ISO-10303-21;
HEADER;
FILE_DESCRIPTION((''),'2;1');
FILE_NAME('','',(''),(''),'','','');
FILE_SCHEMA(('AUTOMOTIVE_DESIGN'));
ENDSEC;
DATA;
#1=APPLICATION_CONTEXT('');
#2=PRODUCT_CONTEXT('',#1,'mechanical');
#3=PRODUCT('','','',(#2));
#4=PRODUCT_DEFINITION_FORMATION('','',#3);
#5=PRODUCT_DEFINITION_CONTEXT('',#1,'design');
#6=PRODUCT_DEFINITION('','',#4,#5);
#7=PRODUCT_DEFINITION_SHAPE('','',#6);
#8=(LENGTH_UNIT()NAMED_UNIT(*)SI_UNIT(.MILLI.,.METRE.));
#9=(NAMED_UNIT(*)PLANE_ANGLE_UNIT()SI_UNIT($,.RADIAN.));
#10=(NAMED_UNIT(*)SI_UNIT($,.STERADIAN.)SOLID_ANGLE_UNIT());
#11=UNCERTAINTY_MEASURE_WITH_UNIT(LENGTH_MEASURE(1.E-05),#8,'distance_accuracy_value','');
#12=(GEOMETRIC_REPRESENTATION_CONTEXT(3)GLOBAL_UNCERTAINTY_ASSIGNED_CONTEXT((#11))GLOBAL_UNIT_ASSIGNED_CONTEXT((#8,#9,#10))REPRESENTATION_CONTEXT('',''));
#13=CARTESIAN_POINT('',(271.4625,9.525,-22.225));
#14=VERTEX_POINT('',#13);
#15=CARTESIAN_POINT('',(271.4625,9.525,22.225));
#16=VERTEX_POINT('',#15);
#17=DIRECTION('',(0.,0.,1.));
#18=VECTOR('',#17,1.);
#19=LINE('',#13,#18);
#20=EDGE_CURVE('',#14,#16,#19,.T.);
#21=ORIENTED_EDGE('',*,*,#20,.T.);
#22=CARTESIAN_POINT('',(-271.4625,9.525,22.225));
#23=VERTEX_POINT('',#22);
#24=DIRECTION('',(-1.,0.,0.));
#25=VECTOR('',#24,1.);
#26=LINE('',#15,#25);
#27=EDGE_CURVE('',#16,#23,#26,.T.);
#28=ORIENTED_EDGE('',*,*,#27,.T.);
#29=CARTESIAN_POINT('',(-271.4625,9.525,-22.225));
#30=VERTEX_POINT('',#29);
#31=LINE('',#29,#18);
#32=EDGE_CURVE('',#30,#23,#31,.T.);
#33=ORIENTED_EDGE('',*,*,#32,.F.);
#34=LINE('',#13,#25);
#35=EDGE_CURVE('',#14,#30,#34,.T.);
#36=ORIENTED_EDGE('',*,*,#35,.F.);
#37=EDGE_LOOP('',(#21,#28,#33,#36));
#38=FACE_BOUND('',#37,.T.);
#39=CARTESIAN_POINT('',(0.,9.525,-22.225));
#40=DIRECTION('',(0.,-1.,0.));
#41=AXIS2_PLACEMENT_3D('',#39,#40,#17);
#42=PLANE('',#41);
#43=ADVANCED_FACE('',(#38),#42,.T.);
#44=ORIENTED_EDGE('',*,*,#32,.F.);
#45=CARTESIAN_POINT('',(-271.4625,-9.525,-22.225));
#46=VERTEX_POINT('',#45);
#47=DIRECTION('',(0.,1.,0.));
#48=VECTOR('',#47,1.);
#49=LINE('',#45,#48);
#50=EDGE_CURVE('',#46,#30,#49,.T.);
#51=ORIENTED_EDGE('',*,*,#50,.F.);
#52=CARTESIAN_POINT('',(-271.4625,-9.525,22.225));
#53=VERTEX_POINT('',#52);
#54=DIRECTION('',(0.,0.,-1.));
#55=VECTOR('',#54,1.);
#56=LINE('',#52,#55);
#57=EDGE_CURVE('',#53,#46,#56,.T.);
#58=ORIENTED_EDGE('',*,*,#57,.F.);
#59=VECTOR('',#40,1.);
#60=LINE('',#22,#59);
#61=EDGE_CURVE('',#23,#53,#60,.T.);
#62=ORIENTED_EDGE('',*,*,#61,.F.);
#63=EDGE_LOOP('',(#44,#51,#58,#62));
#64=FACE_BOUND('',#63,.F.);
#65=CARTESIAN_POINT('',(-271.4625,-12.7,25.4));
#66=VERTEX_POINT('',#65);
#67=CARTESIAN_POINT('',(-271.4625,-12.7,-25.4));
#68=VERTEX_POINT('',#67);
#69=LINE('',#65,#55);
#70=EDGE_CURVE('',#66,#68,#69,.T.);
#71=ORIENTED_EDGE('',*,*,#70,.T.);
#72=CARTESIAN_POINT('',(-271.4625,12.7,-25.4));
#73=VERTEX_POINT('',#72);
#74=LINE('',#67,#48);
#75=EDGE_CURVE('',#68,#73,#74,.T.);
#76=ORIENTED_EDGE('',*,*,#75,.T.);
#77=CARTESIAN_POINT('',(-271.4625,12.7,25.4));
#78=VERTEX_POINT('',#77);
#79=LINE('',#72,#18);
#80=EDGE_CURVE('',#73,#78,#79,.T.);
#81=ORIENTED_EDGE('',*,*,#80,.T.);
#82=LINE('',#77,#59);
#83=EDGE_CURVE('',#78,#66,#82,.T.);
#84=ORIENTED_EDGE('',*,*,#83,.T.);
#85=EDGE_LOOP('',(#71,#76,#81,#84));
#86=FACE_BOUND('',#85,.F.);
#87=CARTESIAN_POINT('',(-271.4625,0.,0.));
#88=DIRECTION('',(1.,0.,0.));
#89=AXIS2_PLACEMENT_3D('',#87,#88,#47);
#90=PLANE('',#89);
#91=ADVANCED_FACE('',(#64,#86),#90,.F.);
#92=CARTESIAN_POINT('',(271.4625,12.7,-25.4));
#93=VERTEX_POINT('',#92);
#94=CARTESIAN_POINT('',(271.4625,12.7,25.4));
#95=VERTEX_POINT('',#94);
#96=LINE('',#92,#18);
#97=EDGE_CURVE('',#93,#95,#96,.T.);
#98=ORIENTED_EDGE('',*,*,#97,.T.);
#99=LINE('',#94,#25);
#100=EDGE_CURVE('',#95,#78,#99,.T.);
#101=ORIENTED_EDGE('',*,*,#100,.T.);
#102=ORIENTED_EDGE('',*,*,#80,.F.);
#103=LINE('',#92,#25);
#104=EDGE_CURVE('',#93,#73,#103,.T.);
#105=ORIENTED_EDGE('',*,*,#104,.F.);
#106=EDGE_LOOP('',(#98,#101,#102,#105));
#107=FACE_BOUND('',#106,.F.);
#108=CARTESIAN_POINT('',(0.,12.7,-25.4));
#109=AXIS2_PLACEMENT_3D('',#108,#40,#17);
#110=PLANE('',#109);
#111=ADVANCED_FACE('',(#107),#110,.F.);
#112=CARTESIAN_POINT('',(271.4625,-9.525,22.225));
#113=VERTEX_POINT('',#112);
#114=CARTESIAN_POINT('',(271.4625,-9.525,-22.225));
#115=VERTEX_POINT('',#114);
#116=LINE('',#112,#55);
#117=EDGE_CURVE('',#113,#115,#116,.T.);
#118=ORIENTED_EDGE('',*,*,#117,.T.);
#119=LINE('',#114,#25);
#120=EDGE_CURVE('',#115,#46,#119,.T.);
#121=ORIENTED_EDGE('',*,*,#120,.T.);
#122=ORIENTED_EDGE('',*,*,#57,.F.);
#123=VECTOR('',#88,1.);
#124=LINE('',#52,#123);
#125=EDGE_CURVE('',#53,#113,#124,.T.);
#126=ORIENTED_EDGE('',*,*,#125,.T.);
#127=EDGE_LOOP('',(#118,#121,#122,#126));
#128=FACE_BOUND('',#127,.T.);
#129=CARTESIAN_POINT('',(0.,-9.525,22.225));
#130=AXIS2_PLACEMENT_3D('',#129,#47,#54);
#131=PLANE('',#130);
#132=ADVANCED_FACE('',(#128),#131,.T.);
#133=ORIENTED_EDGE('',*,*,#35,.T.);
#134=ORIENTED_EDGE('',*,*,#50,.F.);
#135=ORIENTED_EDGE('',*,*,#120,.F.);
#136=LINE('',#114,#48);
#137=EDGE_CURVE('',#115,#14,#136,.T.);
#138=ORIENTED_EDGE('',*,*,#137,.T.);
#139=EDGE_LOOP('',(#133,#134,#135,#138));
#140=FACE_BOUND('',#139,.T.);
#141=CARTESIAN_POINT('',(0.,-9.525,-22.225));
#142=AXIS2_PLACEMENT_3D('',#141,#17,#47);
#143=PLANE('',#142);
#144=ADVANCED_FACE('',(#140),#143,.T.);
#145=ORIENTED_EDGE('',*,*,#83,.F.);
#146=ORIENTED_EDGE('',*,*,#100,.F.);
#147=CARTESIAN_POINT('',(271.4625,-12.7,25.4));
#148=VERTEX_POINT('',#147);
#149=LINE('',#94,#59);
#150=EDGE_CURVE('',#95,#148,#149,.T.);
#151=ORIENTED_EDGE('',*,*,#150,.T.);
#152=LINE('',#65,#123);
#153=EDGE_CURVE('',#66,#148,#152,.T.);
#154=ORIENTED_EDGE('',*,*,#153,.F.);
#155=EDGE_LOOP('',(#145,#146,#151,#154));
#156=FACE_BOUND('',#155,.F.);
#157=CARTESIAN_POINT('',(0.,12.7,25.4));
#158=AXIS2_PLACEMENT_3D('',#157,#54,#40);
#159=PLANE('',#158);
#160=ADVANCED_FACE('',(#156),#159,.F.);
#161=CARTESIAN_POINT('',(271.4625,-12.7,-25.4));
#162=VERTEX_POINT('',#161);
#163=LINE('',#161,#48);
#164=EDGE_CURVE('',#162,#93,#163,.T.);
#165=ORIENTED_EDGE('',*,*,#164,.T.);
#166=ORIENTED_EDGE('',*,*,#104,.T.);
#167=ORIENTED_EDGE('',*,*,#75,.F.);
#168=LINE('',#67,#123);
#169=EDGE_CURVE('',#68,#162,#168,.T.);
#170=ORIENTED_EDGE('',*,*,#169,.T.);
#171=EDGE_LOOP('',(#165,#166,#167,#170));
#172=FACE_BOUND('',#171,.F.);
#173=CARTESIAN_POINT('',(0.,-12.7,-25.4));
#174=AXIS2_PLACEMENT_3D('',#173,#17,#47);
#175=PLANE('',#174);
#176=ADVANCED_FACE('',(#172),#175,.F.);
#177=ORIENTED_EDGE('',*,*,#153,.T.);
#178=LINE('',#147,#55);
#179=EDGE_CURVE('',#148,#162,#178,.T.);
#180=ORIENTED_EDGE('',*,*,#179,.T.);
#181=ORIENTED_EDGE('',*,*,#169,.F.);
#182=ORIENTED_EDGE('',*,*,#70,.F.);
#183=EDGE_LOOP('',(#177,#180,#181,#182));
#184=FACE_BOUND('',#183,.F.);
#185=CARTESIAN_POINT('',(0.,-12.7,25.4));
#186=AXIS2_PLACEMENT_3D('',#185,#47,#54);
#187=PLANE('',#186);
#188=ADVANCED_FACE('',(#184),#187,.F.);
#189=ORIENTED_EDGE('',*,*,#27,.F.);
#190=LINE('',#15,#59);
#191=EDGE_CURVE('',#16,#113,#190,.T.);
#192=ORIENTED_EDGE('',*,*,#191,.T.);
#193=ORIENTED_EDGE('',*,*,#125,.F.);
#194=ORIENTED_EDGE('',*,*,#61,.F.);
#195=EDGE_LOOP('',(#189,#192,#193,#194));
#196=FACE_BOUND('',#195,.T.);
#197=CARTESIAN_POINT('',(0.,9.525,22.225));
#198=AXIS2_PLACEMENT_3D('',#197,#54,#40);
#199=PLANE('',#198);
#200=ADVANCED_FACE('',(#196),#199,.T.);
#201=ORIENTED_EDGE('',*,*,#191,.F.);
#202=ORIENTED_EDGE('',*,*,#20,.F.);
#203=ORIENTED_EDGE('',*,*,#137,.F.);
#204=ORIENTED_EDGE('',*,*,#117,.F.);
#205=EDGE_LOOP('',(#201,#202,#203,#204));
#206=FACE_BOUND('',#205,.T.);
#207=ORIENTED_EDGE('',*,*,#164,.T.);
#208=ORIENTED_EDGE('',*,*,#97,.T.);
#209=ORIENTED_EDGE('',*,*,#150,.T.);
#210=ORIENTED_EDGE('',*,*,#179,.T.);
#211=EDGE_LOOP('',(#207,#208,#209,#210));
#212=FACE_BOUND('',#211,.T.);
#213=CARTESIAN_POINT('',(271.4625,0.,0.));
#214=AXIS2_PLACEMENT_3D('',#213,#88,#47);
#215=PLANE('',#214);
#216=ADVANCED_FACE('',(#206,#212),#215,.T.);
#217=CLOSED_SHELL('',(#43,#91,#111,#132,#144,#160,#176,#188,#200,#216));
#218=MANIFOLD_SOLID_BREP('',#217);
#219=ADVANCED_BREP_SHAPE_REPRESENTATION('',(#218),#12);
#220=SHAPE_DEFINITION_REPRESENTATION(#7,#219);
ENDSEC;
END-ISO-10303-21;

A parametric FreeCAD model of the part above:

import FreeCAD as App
import Part
import Sketcher

V = App.Vector
Q = App.Units.Quantity


def add_polygon(sketch, points):
    """Adds a closed chain of lines whose ends are joined by coincident constraints."""
    first, n = sketch.GeometryCount, len(points)
    for a, b in zip(points, points[1:] + points[:1]):
        sketch.addGeometry(Part.LineSegment(App.Vector(*a, 0), App.Vector(*b, 0)), False)
    for i in range(n):
        sketch.addConstraint(Sketcher.Constraint("Coincident", first + i, 2, first + (i + 1) % n, 1))

doc = App.newDocument("Part")
body = doc.addObject("PartDesign::Body", "Body")

sketch1 = body.newObject("Sketcher::SketchObject", "Sketch")
sketch1.AttachmentSupport = (doc.getObject("YZ_Plane"), [""])
sketch1.MapMode = "FlatFace"
add_polygon(sketch1, [(13, 25), (-13, 25), (-13, -25), (13, -25)])
add_polygon(sketch1, [(-10, -22), (-10, 22), (10, 22), (10, -22)])
sketch1.addConstraint([
    Sketcher.Constraint("Horizontal", 0),
    Sketcher.Constraint("Vertical", 1),
    Sketcher.Constraint("Horizontal", 2),
    Sketcher.Constraint("Vertical", 3),
    Sketcher.Constraint("Vertical", 4),
    Sketcher.Constraint("Horizontal", 5),
    Sketcher.Constraint("Vertical", 6),
    Sketcher.Constraint("Horizontal", 7),
    Sketcher.Constraint("Symmetric", 0, 2, 2, 2, -1, 1),
    Sketcher.Constraint("Symmetric", 4, 2, 6, 2, -1, 1),
    Sketcher.Constraint("DistanceX", 0, 2, 0, 1, Q("1 in")),
    Sketcher.Constraint("DistanceY", 1, 2, 1, 1, Q("2 in")),
    Sketcher.Constraint("DistanceX", 0, 2, 4, 2, Q("0.125 in")),
    Sketcher.Constraint("DistanceY", 4, 2, 0, 2, Q("0.125 in")),
])
pad1 = body.newObject("PartDesign::Pad", "Pad")
pad1.Profile = sketch1
pad1.Length = Q("21.375 in")
pad1.Midplane = True

doc.recompute()
